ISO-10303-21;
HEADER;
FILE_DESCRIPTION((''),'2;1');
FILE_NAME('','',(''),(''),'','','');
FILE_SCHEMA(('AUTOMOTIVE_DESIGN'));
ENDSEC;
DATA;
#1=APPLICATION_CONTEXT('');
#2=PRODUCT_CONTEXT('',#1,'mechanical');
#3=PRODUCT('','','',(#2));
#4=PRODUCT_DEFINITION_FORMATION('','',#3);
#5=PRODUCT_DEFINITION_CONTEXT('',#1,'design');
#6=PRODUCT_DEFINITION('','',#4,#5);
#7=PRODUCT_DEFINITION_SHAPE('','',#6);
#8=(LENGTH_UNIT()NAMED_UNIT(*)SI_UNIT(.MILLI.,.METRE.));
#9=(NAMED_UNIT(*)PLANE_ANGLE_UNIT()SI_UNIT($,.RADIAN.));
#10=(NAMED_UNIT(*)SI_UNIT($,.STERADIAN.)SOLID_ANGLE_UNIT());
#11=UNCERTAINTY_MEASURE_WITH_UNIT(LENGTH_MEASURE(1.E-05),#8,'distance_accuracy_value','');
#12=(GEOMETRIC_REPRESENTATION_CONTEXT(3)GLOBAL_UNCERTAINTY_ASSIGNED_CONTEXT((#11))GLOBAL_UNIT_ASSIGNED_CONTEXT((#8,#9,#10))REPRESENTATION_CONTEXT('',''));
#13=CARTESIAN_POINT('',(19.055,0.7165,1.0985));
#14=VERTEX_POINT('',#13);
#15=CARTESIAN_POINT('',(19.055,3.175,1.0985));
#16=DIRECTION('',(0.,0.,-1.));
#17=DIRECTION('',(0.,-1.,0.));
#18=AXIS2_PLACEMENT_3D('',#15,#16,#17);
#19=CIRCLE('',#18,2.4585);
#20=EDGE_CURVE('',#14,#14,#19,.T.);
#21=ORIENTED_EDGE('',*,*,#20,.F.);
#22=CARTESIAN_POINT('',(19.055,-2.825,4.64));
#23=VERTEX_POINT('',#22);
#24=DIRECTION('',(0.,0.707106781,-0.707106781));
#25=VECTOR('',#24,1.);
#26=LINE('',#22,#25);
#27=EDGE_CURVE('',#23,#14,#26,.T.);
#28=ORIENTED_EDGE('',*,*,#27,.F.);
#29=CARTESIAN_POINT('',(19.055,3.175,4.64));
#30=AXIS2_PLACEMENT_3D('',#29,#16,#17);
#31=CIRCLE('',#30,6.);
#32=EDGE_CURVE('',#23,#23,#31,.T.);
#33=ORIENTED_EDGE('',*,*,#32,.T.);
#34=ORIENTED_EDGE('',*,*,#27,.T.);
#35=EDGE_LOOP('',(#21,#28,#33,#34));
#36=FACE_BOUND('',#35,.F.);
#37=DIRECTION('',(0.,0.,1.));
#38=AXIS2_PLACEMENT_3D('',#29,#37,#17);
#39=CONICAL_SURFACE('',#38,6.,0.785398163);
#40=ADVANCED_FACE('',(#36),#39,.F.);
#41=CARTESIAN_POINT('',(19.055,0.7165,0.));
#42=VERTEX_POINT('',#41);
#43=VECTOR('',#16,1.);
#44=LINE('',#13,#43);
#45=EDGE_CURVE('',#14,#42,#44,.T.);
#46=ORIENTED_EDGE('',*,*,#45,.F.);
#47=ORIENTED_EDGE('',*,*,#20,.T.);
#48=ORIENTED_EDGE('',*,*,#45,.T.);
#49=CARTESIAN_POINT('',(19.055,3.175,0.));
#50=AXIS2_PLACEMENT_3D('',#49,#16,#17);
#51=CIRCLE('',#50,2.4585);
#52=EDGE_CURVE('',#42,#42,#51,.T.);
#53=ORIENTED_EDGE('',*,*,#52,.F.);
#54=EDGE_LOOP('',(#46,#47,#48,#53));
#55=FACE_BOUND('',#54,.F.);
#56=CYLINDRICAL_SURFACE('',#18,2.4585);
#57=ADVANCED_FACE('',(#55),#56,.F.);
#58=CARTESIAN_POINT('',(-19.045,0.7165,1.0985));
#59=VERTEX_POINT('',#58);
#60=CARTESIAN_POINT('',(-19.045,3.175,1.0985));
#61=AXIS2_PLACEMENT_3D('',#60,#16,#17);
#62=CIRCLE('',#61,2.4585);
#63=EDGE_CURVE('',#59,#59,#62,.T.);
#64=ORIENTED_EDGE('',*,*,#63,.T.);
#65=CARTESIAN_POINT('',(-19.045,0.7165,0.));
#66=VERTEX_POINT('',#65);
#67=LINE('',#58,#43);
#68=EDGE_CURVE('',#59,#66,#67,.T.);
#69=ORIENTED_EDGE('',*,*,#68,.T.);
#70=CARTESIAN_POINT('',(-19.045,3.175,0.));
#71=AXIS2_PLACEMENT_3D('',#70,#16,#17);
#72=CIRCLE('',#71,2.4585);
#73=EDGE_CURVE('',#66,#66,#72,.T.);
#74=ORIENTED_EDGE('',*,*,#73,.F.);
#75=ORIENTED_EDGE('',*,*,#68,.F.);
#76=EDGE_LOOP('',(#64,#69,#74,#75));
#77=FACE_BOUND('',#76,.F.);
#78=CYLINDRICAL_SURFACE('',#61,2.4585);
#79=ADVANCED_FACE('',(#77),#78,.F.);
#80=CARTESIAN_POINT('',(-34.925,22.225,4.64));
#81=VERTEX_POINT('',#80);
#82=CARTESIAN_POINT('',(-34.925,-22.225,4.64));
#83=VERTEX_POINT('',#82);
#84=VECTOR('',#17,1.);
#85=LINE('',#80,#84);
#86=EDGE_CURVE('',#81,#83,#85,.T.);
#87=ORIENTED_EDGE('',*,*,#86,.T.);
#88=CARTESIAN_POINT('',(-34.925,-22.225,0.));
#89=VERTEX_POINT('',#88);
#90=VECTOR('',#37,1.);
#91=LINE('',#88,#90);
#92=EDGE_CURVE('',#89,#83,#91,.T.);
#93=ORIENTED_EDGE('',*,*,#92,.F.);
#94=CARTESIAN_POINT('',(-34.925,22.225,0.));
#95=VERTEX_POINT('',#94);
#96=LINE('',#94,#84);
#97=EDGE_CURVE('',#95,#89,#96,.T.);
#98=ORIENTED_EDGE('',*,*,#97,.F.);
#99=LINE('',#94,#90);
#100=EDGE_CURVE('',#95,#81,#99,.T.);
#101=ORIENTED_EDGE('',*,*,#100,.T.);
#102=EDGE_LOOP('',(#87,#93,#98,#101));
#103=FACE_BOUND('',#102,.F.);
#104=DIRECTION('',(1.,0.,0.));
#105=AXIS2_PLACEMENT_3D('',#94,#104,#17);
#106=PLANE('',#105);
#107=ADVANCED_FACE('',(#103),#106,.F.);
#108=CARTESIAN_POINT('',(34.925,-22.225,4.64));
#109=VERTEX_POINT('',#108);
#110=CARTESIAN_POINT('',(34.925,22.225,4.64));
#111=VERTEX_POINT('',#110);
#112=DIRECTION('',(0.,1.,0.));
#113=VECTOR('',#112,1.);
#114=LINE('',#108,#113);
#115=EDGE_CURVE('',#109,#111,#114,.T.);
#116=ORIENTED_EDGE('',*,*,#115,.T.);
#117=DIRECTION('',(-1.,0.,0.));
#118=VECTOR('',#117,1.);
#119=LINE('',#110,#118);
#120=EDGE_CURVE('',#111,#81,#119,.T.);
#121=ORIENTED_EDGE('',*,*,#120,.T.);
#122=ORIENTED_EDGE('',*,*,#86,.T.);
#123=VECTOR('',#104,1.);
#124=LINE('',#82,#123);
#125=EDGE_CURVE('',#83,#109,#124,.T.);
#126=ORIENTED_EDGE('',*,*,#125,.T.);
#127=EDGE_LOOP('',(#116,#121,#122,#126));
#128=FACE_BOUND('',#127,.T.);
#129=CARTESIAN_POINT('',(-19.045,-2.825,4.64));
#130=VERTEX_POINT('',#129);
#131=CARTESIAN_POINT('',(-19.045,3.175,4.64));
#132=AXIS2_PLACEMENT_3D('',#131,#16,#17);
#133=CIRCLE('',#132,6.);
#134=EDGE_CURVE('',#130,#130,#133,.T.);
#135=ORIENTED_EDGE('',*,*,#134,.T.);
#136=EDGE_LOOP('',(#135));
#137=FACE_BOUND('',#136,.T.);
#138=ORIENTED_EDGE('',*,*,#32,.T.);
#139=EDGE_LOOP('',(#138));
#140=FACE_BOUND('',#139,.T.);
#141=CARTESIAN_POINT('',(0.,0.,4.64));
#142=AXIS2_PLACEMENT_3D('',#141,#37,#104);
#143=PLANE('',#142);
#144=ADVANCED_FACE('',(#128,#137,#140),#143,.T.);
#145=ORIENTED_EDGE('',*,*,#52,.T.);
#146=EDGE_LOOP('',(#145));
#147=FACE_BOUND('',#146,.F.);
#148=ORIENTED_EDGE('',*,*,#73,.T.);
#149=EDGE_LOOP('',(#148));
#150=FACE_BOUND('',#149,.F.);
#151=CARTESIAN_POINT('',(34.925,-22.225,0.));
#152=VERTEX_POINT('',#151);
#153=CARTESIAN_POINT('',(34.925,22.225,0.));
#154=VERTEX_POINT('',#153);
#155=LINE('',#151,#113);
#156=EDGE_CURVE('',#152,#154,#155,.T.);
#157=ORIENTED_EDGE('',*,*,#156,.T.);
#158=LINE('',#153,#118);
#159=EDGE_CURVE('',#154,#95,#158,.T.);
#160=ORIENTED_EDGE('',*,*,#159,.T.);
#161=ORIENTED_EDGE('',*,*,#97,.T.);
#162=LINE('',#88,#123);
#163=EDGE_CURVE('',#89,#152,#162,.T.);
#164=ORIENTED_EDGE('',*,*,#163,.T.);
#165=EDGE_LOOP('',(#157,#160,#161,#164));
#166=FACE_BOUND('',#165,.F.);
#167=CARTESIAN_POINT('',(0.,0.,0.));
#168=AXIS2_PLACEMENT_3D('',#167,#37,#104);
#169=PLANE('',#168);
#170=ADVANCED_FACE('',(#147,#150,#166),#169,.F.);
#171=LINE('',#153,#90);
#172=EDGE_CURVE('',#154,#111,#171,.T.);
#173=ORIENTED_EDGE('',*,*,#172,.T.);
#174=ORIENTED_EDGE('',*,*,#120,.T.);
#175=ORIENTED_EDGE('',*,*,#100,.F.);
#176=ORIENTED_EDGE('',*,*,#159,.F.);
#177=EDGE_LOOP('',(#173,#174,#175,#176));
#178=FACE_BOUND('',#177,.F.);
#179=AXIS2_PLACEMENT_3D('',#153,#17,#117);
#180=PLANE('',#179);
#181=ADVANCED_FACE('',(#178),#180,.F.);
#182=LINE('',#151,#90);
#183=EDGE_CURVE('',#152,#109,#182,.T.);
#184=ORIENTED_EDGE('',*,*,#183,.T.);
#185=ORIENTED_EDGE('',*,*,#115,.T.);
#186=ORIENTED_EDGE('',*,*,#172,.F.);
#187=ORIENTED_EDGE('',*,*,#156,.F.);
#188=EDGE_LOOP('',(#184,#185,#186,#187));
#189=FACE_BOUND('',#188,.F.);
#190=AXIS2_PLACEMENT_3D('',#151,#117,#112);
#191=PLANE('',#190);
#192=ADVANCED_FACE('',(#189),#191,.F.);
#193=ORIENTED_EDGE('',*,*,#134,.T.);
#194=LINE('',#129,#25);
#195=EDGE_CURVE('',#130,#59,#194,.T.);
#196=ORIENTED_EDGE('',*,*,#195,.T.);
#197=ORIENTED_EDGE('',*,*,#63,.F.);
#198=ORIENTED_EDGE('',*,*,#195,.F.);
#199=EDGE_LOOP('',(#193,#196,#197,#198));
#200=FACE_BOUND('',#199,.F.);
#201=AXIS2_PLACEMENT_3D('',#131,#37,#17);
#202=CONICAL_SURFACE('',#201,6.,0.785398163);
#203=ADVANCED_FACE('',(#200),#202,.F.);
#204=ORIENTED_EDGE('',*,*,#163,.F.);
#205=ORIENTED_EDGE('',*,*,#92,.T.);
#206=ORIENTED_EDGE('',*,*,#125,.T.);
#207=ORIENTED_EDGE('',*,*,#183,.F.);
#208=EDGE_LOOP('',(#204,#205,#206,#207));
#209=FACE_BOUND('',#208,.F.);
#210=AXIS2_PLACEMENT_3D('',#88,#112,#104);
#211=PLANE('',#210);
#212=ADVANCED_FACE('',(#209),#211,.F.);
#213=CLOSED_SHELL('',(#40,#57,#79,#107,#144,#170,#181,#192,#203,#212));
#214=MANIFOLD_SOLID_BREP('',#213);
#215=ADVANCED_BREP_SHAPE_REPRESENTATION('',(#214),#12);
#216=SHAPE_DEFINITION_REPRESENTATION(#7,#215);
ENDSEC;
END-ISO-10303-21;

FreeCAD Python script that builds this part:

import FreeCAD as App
import Part
import Sketcher

V = App.Vector
Q = App.Units.Quantity


def add_polygon(sketch, points):
    """Adds a closed chain of lines whose ends are joined by coincident constraints."""
    first, n = sketch.GeometryCount, len(points)
    for a, b in zip(points, points[1:] + points[:1]):
        sketch.addGeometry(Part.LineSegment(App.Vector(*a, 0), App.Vector(*b, 0)), False)
    for i in range(n):
        sketch.addConstraint(Sketcher.Constraint("Coincident", first + i, 2, first + (i + 1) % n, 1))

doc = App.newDocument("Part")
body = doc.addObject("PartDesign::Body", "Body")

sketch1 = body.newObject("Sketcher::SketchObject", "Sketch")
sketch1.AttachmentSupport = (doc.getObject("XY_Plane"), [""])
sketch1.MapMode = "FlatFace"
add_polygon(sketch1, [(-35, 22), (-35, -22), (35, -22), (35, 22)])
sketch1.addConstraint([
    Sketcher.Constraint("Vertical", 0),
    Sketcher.Constraint("Horizontal", 1),
    Sketcher.Constraint("Vertical", 2),
    Sketcher.Constraint("Horizontal", 3),
    Sketcher.Constraint("Symmetric", 0, 2, 2, 2, -1, 1),
    Sketcher.Constraint("DistanceX", 1, 1, 1, 2, Q("2.75 in")),
    Sketcher.Constraint("DistanceY", 0, 2, 0, 1, Q("1.75 in")),
])
pad1 = body.newObject("PartDesign::Pad", "Pad")
pad1.Profile = sketch1
pad1.Length = 4.64

sketch2 = body.newObject("Sketcher::SketchObject", "Sketch001")
sketch2.AttachmentSupport = (doc.getObject("XY_Plane"), [""])
sketch2.MapMode = "FlatFace"
sketch2.AttachmentOffset = App.Placement(V(0, 0, 4.64), App.Rotation())
sketch2.addGeometry([
    Part.Circle(V(-19, 3.2, 0), V(0, 0, 1), 2.5),
    Part.Circle(V(19.1, 3.2, 0), V(0, 0, 1), 2.5),
], False)
sketch2.addConstraint([
    Sketcher.Constraint("Equal", 0, 1),
    Sketcher.Constraint("Horizontal", 0, 3, 1, 3),
    Sketcher.Constraint("DistanceX", 0, 3, 1, 3, Q("1.5 in")),
    Sketcher.Constraint("Diameter", 0, Q("4.917 mm")),
    Sketcher.Constraint("DistanceY", -1, 1, 0, 3, Q("0.125 in")),
    Sketcher.Constraint("DistanceX", 0, 3, -1, 1, Q("0.7498 in")),
])
doc.recompute()
hole = body.newObject("PartDesign::Hole", "Hole")
hole.Profile = sketch2
hole.ThreadType = "None"
hole.Diameter = 4.917
hole.DepthType = "Dimension"
hole.Depth = 15
hole.DrillPoint = "Angled"
hole.DrillPointAngle = 118
hole.HoleCutType = "Countersink"
hole.HoleCutDiameter = 12
hole.HoleCutCountersinkAngle = 90

doc.recompute()
